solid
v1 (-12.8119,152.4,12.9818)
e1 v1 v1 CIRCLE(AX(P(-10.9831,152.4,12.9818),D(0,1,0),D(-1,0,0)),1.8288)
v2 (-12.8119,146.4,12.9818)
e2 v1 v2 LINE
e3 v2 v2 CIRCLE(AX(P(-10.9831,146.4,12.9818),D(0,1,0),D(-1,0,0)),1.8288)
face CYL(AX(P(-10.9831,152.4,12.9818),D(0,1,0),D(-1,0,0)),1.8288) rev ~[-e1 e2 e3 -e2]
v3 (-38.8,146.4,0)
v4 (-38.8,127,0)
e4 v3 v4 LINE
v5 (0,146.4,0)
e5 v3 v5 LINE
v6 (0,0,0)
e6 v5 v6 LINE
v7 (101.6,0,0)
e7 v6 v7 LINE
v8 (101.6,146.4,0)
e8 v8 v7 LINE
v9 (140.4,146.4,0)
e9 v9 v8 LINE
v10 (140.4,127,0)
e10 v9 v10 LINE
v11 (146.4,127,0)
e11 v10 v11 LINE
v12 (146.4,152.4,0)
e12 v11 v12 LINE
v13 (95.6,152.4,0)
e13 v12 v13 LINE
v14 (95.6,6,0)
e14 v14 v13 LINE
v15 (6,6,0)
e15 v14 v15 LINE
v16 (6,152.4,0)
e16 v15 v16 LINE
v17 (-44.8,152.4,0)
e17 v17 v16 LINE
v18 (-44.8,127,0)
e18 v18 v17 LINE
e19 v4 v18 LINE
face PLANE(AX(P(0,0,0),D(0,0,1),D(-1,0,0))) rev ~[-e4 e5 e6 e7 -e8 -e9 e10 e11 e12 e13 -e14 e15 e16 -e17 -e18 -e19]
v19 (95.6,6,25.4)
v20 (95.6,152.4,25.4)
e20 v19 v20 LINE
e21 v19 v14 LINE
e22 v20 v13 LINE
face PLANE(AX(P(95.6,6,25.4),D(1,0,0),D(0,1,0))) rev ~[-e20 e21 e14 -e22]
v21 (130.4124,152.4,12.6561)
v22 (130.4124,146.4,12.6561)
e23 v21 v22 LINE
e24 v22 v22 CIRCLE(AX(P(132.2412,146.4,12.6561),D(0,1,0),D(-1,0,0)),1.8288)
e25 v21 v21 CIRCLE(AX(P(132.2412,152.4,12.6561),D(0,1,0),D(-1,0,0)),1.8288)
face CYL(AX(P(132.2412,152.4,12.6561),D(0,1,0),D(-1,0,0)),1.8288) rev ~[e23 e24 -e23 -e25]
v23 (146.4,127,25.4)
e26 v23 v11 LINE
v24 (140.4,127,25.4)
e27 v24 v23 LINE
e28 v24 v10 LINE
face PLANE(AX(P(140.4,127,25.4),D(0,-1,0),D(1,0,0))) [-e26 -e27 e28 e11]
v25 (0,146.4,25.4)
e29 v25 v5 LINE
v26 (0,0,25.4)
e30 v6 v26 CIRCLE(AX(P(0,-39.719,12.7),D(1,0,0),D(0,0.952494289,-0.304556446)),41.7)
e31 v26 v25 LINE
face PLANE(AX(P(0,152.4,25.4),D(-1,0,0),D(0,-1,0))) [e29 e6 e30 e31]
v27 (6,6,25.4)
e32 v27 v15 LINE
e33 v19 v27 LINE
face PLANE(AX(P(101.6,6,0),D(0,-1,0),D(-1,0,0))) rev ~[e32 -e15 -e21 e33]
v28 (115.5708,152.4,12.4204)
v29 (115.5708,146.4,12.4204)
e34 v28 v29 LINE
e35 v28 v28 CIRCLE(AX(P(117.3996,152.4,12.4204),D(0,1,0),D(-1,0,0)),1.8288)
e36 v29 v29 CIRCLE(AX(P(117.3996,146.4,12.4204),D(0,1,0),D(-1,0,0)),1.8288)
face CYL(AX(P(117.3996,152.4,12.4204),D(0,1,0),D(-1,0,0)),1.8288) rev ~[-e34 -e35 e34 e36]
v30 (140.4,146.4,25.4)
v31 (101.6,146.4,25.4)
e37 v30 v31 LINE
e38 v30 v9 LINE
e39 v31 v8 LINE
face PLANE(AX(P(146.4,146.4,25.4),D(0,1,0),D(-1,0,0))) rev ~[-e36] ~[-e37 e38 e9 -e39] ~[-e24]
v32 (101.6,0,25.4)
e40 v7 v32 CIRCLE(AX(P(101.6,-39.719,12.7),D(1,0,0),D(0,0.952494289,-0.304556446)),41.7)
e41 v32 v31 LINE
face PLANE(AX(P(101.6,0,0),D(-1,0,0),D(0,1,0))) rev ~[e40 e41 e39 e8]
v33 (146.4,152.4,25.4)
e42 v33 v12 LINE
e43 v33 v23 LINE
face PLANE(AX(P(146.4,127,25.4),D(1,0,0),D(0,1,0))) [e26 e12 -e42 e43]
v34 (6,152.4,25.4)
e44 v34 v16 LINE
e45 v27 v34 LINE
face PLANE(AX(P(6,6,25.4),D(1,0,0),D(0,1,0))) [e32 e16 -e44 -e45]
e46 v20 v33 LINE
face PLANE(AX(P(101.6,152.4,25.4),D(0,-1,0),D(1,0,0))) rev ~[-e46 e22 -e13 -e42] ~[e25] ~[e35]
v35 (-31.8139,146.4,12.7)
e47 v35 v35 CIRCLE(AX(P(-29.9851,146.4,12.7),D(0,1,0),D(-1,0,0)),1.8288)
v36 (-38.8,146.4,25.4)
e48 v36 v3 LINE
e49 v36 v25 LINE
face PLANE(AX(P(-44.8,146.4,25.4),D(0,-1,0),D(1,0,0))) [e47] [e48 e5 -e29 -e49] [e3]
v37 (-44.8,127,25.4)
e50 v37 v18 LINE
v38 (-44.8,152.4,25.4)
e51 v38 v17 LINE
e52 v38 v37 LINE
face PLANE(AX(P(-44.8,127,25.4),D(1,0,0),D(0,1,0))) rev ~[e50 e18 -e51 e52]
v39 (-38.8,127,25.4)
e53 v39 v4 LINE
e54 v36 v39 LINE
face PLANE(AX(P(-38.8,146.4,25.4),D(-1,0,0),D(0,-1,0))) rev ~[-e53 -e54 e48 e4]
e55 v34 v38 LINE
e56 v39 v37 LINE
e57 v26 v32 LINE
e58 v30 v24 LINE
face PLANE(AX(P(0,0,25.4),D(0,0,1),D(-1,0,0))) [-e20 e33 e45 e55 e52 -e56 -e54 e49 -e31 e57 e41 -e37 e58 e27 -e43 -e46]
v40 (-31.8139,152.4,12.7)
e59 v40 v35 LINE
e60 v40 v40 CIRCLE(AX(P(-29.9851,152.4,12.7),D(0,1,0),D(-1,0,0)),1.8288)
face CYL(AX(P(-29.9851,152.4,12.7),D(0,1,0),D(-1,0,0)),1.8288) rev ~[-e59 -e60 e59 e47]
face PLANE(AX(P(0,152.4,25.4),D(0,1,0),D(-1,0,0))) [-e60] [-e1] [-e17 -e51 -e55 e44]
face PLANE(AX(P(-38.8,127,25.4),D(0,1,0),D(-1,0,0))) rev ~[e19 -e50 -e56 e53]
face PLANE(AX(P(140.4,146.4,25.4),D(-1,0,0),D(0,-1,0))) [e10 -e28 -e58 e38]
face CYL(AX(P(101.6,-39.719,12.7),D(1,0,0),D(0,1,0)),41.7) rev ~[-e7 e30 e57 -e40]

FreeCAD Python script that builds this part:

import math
import FreeCAD as App
import Part
import Sketcher


def add_polygon(sketch, points):
    """Adds a closed chain of lines whose ends are joined by coincident constraints."""
    first, n = sketch.GeometryCount, len(points)
    for a, b in zip(points, points[1:] + points[:1]):
        sketch.addGeometry(Part.LineSegment(App.Vector(*a, 0), App.Vector(*b, 0)), False)
    for i in range(n):
        sketch.addConstraint(Sketcher.Constraint("Coincident", first + i, 2, first + (i + 1) % n, 1))

doc = App.newDocument("Part")
params = doc.addObject("Spreadsheet::Sheet", "Params")
for row, (alias, value) in enumerate([
    ("sketch1_height", "6 mm"),
    ("sketch1_width", "101.6 mm"),
    ("pad1_length", "25.4 mm"),
    ("sketch2_width", "6 mm"),
    ("pad2_length", "25.4 mm"),
    ("sketch3_width", "6 mm"),
    ("pad3_length", "25.4 mm"),
    ("sketch4_radius", "41.7 mm"),
    ("sketch4_height", "25.4 mm"),
    ("pocket1_length", "101.6 mm"),
    ("sketch5_height", "6 mm"),
    ("sketch5_width", "44.8 mm"),
    ("pad4_length", "25.4 mm"),
    ("sketch6_width", "6 mm"),
    ("sketch6_height", "19.4 mm"),
    ("pad5_length", "25.4 mm"),
    ("sketch7_height", "6 mm"),
    ("sketch7_width", "44.8 mm"),
    ("pad6_length", "25.4 mm"),
    ("sketch8_width", "6 mm"),
    ("sketch8_height", "19.4 mm"),
    ("pad7_length", "25.4 mm"),
    ("pocket2_length", "25 mm"),
    ("pocket3_length", "30 mm"),
    ("pocket4_length", "20 mm"),
    ("pocket5_length", "30 mm"),
], start=1):
    params.set(f"A{row}", alias)
    params.set(f"B{row}", "=" + value)
    params.setAlias(f"B{row}", alias)

body = doc.addObject("PartDesign::Body", "Body")

# Sketch on XY plane
sketch1 = body.newObject("Sketcher::SketchObject", "Sketch")
sketch1.AttachmentSupport = (doc.getObject("XY_Plane"), [""])
sketch1.MapMode = "FlatFace"
add_polygon(sketch1, [(0, 6), (0, 0), (102, 0), (102, 6)])  # lines 0-3
sketch1.addConstraint([
    Sketcher.Constraint("Vertical", 0),
    Sketcher.Constraint("Horizontal", 1),
    Sketcher.Constraint("Vertical", 2),
    Sketcher.Constraint("Horizontal", 3),
    Sketcher.Constraint("Coincident", 0, 2, -1, 1),
    Sketcher.Constraint("DistanceY", 0, 2, 0, 1, 6.0),
    Sketcher.Constraint("DistanceX", 1, 1, 1, 2, 101.6),
])
sketch1.setExpression("Constraints[9]", "Params.sketch1_height")
sketch1.setExpression("Constraints[10]", "Params.sketch1_width")
pad1 = body.newObject("PartDesign::Pad", "Pad")
pad1.Profile = sketch1
pad1.setExpression("Length", "Params.pad1_length")

# Sketch on XY plane
sketch2 = body.newObject("Sketcher::SketchObject", "Sketch001")
sketch2.AttachmentSupport = (doc.getObject("XY_Plane"), [""])
sketch2.MapMode = "FlatFace"
sketch2.AttachmentOffset = App.Placement(App.Vector(0, 0, 25.4), App.Rotation())
add_polygon(sketch2, [(96, 152), (96, 6), (102, 6), (102, 152)])  # lines 0-3
sketch2.addConstraint([
    Sketcher.Constraint("Vertical", 0),
    Sketcher.Constraint("Horizontal", 1),
    Sketcher.Constraint("Vertical", 2),
    Sketcher.Constraint("Horizontal", 3),
    Sketcher.Constraint("DistanceX", 1, 1, 1, 2, 6.0),
    Sketcher.Constraint("DistanceY", -1, 1, 0, 2, 6.0),
    Sketcher.Constraint("DistanceY", -1, 1, 2, 2, 152.4),
    Sketcher.Constraint("DistanceX", -1, 1, 0, 2, 95.6),
])
sketch2.setExpression("Constraints[8]", "Params.sketch2_width")
pad2 = body.newObject("PartDesign::Pad", "Pad001")
pad2.Profile = sketch2
pad2.setExpression("Length", "Params.pad2_length")
pad2.Reversed = True

# Sketch on XY plane
sketch3 = body.newObject("Sketcher::SketchObject", "Sketch002")
sketch3.AttachmentSupport = (doc.getObject("XY_Plane"), [""])
sketch3.MapMode = "FlatFace"
sketch3.AttachmentOffset = App.Placement(App.Vector(0, 0, 25.4), App.Rotation())
add_polygon(sketch3, [(0, 152), (0, 6), (6, 6), (6, 152)])  # lines 0-3
sketch3.addConstraint([
    Sketcher.Constraint("Vertical", 0),
    Sketcher.Constraint("Horizontal", 1),
    Sketcher.Constraint("Vertical", 2),
    Sketcher.Constraint("Horizontal", 3),
    Sketcher.Constraint("PointOnObject", 0, 2, -2),
    Sketcher.Constraint("DistanceX", 1, 1, 1, 2, 6.0),
    Sketcher.Constraint("DistanceY", -1, 1, 0, 2, 6.0),
    Sketcher.Constraint("DistanceY", -1, 1, 2, 2, 152.4),
])
sketch3.setExpression("Constraints[9]", "Params.sketch3_width")
pad3 = body.newObject("PartDesign::Pad", "Pad002")
pad3.Profile = sketch3
pad3.setExpression("Length", "Params.pad3_length")
pad3.Reversed = True

# Sketch on YZ plane
sketch4 = body.newObject("Sketcher::SketchObject", "Sketch003")
sketch4.AttachmentSupport = (doc.getObject("YZ_Plane"), [""])
sketch4.MapMode = "FlatFace"
sketch4.AttachmentOffset = App.Placement(App.Vector(0, 0, 101.6), App.Rotation())
sketch4.addGeometry([
    Part.LineSegment(App.Vector(0, 25, 0), App.Vector(0, 0, 0)),
    Part.ArcOfCircle(Part.Circle(App.Vector(-40, 13, 0), App.Vector(0, 0, 1), 42), math.radians(-18), math.radians(18)),
], False)
sketch4.addConstraint([
    Sketcher.Constraint("Coincident", 0, 1, 1, 2),
    Sketcher.Constraint("Coincident", 1, 1, 0, 2),
    Sketcher.Constraint("Vertical", 0),
    Sketcher.Constraint("Coincident", 1, 1, -1, 1),
    Sketcher.Constraint("Radius", 1, 41.7),
    Sketcher.Constraint("DistanceY", 0, 2, 0, 1, 25.4),
])
sketch4.setExpression("Constraints[4]", "Params.sketch4_radius")
sketch4.setExpression("Constraints[5]", "Params.sketch4_height")
pocket1 = body.newObject("PartDesign::Pocket", "Pocket")
pocket1.Profile = sketch4
pocket1.setExpression("Length", "Params.pocket1_length")

# Sketch on XY plane
sketch5 = body.newObject("Sketcher::SketchObject", "Sketch004")
sketch5.AttachmentSupport = (doc.getObject("XY_Plane"), [""])
sketch5.MapMode = "FlatFace"
sketch5.AttachmentOffset = App.Placement(App.Vector(0, 0, 25.4), App.Rotation())
add_polygon(sketch5, [(0, 146), (0, 152), (-45, 152), (-45, 146)])  # lines 0-3
sketch5.addConstraint([
    Sketcher.Constraint("Vertical", 0),
    Sketcher.Constraint("Horizontal", 1),
    Sketcher.Constraint("Vertical", 2),
    Sketcher.Constraint("Horizontal", 3),
    Sketcher.Constraint("PointOnObject", 0, 2, -2),
    Sketcher.Constraint("DistanceY", 0, 1, 0, 2, 6.0),
    Sketcher.Constraint("DistanceX", 1, 2, 1, 1, 44.8),
    Sketcher.Constraint("DistanceY", -1, 1, 0, 2, 152.4),
])
sketch5.setExpression("Constraints[9]", "Params.sketch5_height")
sketch5.setExpression("Constraints[10]", "Params.sketch5_width")
pad4 = body.newObject("PartDesign::Pad", "Pad003")
pad4.Profile = sketch5
pad4.setExpression("Length", "Params.pad4_length")
pad4.Reversed = True

# Sketch on XY plane
sketch6 = body.newObject("Sketcher::SketchObject", "Sketch005")
sketch6.AttachmentSupport = (doc.getObject("XY_Plane"), [""])
sketch6.MapMode = "FlatFace"
sketch6.AttachmentOffset = App.Placement(App.Vector(0, 0, 25.4), App.Rotation())
add_polygon(sketch6, [(-39, 127), (-39, 146), (-45, 146), (-45, 127)])  # lines 0-3
sketch6.addConstraint([
    Sketcher.Constraint("Vertical", 0),
    Sketcher.Constraint("Horizontal", 1),
    Sketcher.Constraint("Vertical", 2),
    Sketcher.Constraint("Horizontal", 3),
    Sketcher.Constraint("DistanceX", 1, 2, 1, 1, 6.0),
    Sketcher.Constraint("DistanceY", 0, 1, 0, 2, 19.4),
    Sketcher.Constraint("DistanceY", -1, 1, 2, 2, 127.0),
    Sketcher.Constraint("DistanceX", 0, 2, -1, 1, 38.8),
])
sketch6.setExpression("Constraints[8]", "Params.sketch6_width")
sketch6.setExpression("Constraints[9]", "Params.sketch6_height")
pad5 = body.newObject("PartDesign::Pad", "Pad004")
pad5.Profile = sketch6
pad5.setExpression("Length", "Params.pad5_length")
pad5.Reversed = True

# Sketch on XY plane
sketch7 = body.newObject("Sketcher::SketchObject", "Sketch006")
sketch7.AttachmentSupport = (doc.getObject("XY_Plane"), [""])
sketch7.MapMode = "FlatFace"
sketch7.AttachmentOffset = App.Placement(App.Vector(0, 0, 25.4), App.Rotation())
add_polygon(sketch7, [(102, 152), (102, 146), (146, 146), (146, 152)])  # lines 0-3
sketch7.addConstraint([
    Sketcher.Constraint("Vertical", 0),
    Sketcher.Constraint("Horizontal", 1),
    Sketcher.Constraint("Vertical", 2),
    Sketcher.Constraint("Horizontal", 3),
    Sketcher.Constraint("DistanceY", 0, 2, 0, 1, 6.0),
    Sketcher.Constraint("DistanceX", 1, 1, 1, 2, 44.8),
    Sketcher.Constraint("DistanceX", -1, 1, 0, 2, 101.6),
    Sketcher.Constraint("DistanceY", -1, 1, 0, 2, 146.4),
])
sketch7.setExpression("Constraints[8]", "Params.sketch7_height")
sketch7.setExpression("Constraints[9]", "Params.sketch7_width")
pad6 = body.newObject("PartDesign::Pad", "Pad005")
pad6.Profile = sketch7
pad6.setExpression("Length", "Params.pad6_length")
pad6.Reversed = True

# Sketch on XY plane
sketch8 = body.newObject("Sketcher::SketchObject", "Sketch007")
sketch8.AttachmentSupport = (doc.getObject("XY_Plane"), [""])
sketch8.MapMode = "FlatFace"
sketch8.AttachmentOffset = App.Placement(App.Vector(0, 0, 25.4), App.Rotation())
add_polygon(sketch8, [(146, 146), (140, 146), (140, 127), (146, 127)])  # lines 0-3
sketch8.addConstraint([
    Sketcher.Constraint("Horizontal", 0),
    Sketcher.Constraint("Vertical", 1),
    Sketcher.Constraint("Horizontal", 2),
    Sketcher.Constraint("Vertical", 3),
    Sketcher.Constraint("DistanceX", 0, 2, 0, 1, 6.0),
    Sketcher.Constraint("DistanceY", 1, 2, 1, 1, 19.4),
    Sketcher.Constraint("DistanceY", -1, 1, 1, 2, 127.0),
    Sketcher.Constraint("DistanceX", -1, 1, 0, 2, 140.4),
])
sketch8.setExpression("Constraints[8]", "Params.sketch8_width")
sketch8.setExpression("Constraints[9]", "Params.sketch8_height")
pad7 = body.newObject("PartDesign::Pad", "Pad006")
pad7.Profile = sketch8
pad7.setExpression("Length", "Params.pad7_length")
pad7.Reversed = True

# Sketch on XZ plane
sketch9 = body.newObject("Sketcher::SketchObject", "Sketch008")
sketch9.AttachmentSupport = (doc.getObject("XZ_Plane"), [""])
sketch9.MapMode = "FlatFace"
sketch9.AttachmentOffset = App.Placement(App.Vector(0, 0, -152.4), App.Rotation())
sketch9.addGeometry(Part.Circle(App.Vector(132.2, 12.7, 0), App.Vector(0, 0, 1), 1.8), False)
sketch9.addConstraint([
    Sketcher.Constraint("Diameter", 0, 3.6576),
    Sketcher.Constraint("DistanceY", -1, 1, 0, 3, 12.656),
    Sketcher.Constraint("DistanceX", -1, 1, 0, 3, 132.2412),
])
pocket2 = body.newObject("PartDesign::Pocket", "Pocket001")
pocket2.Profile = sketch9
pocket2.setExpression("Length", "Params.pocket2_length")
pocket2.Reversed = True

# Sketch on XZ plane
sketch10 = body.newObject("Sketcher::SketchObject", "Sketch009")
sketch10.AttachmentSupport = (doc.getObject("XZ_Plane"), [""])
sketch10.MapMode = "FlatFace"
sketch10.AttachmentOffset = App.Placement(App.Vector(0, 0, -152.4), App.Rotation())
sketch10.addGeometry(Part.Circle(App.Vector(117.4, 12.4, 0), App.Vector(0, 0, 1), 1.8), False)
sketch10.addConstraint([
    Sketcher.Constraint("Diameter", 0, 3.6576),
    Sketcher.Constraint("DistanceX", -1, 1, 0, 3, 117.3996),
    Sketcher.Constraint("DistanceY", -1, 1, 0, 3, 12.4204),
])
pocket3 = body.newObject("PartDesign::Pocket", "Pocket002")
pocket3.Profile = sketch10
pocket3.setExpression("Length", "Params.pocket3_length")
pocket3.Reversed = True

# Sketch on XZ plane
sketch11 = body.newObject("Sketcher::SketchObject", "Sketch010")
sketch11.AttachmentSupport = (doc.getObject("XZ_Plane"), [""])
sketch11.MapMode = "FlatFace"
sketch11.AttachmentOffset = App.Placement(App.Vector(0, 0, -152.4), App.Rotation())
sketch11.addGeometry(Part.Circle(App.Vector(-30, 12.7, 0), App.Vector(0, 0, 1), 1.8), False)
sketch11.addConstraint([
    Sketcher.Constraint("Diameter", 0, 3.6576),
    Sketcher.Constraint("DistanceY", -1, 1, 0, 3, 12.7),
    Sketcher.Constraint("DistanceX", 0, 3, -1, 1, 29.985),
])
pocket4 = body.newObject("PartDesign::Pocket", "Pocket003")
pocket4.Profile = sketch11
pocket4.setExpression("Length", "Params.pocket4_length")
pocket4.Reversed = True

# Sketch on XZ plane
sketch12 = body.newObject("Sketcher::SketchObject", "Sketch011")
sketch12.AttachmentSupport = (doc.getObject("XZ_Plane"), [""])
sketch12.MapMode = "FlatFace"
sketch12.AttachmentOffset = App.Placement(App.Vector(0, 0, -152.4), App.Rotation())
sketch12.addGeometry(Part.Circle(App.Vector(-11, 13, 0), App.Vector(0, 0, 1), 1.8), False)
sketch12.addConstraint([
    Sketcher.Constraint("Diameter", 0, 3.6576),
    Sketcher.Constraint("DistanceX", 0, 3, -1, 1, 10.983),
    Sketcher.Constraint("DistanceY", -1, 1, 0, 3, 12.9818),
])
pocket5 = body.newObject("PartDesign::Pocket", "Pocket004")
pocket5.Profile = sketch12
pocket5.setExpression("Length", "Params.pocket5_length")
pocket5.Reversed = True

doc.recompute()
